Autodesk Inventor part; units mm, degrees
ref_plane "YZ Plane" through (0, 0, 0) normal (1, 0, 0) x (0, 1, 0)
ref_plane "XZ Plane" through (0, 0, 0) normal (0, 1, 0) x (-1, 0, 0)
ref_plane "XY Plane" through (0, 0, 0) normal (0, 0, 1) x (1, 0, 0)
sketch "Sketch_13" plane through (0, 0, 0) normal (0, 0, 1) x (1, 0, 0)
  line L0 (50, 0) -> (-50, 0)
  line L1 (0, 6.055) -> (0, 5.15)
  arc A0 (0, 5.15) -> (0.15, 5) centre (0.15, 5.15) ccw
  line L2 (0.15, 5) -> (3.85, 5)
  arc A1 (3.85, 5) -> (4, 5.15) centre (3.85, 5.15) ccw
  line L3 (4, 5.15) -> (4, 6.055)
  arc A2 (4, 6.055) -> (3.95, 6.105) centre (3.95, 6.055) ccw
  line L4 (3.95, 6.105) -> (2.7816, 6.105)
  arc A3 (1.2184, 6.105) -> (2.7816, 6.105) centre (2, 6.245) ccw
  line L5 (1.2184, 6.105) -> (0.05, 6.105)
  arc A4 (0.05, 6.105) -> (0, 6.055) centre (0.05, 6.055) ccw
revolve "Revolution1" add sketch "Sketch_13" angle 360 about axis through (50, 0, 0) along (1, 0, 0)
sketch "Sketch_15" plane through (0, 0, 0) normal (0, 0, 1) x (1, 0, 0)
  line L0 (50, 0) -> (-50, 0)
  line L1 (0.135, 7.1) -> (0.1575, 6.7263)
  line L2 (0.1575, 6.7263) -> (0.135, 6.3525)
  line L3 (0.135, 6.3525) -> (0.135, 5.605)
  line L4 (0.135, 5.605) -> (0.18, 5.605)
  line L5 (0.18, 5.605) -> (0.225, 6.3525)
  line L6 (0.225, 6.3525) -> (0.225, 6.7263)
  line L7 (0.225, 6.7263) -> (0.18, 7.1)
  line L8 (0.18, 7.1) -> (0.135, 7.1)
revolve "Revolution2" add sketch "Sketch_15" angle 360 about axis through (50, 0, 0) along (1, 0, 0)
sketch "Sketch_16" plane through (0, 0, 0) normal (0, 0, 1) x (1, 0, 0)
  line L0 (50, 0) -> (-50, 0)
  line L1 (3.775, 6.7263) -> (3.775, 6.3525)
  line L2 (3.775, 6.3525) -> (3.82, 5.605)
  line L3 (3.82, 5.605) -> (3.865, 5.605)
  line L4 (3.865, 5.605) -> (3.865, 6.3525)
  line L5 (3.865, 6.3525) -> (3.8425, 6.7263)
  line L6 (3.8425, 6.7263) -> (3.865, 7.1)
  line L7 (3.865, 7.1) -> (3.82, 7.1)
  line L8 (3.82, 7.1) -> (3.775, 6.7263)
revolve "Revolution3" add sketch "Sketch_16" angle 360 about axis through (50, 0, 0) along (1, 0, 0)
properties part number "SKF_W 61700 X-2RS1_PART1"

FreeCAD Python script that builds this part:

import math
import FreeCAD as App
import Part
import Sketcher
from FreeCAD import Vector
Q = App.Units.Quantity

doc = App.newDocument("Part")
body = doc.addObject("PartDesign::Body", "Body")

# Sketch on XY plane
sketch1 = doc.addObject("Sketcher::SketchObject", "Sketch")
body.addObject(sketch1)
sketch1.AttachmentSupport = (doc.XY_Plane, [""])
sketch1.MapMode = "FlatFace"
sketch1.addGeometry([
    Part.ArcOfCircle(Part.Circle(Vector(0.05, 6.055, 0), Vector(0, 0, 1), 0.05), math.radians(90), math.radians(180)),  # 0
    Part.LineSegment(Vector(0, 6.055, 0), Vector(0, 5.15, 0)),  # 1
    Part.ArcOfCircle(Part.Circle(Vector(0.15, 5.15, 0), Vector(0, 0, 1), 0.15), math.radians(180), math.radians(270)),  # 2
    Part.LineSegment(Vector(0.15, 5, 0), Vector(3.85, 5, 0)),  # 3
    Part.ArcOfCircle(Part.Circle(Vector(3.85, 5.15, 0), Vector(0, 0, 1), 0.15), math.radians(-90), math.radians(0)),  # 4
    Part.LineSegment(Vector(4, 5.15, 0), Vector(4, 6.055, 0)),  # 5
    Part.ArcOfCircle(Part.Circle(Vector(3.95, 6.055, 0), Vector(0, 0, 1), 0.05), math.radians(0), math.radians(90)),  # 6
    Part.LineSegment(Vector(3.95, 6.105, 0), Vector(2.782, 6.105, 0)),  # 7
    Part.ArcOfCircle(Part.Circle(Vector(2, 6.245, 0), Vector(0, 0, 1), 0.794), math.radians(-170), math.radians(-10)),  # 8
    Part.LineSegment(Vector(1.218, 6.105, 0), Vector(0.05, 6.105, 0)),  # 9
], False)
sketch1.addConstraint([
    Sketcher.Constraint("Tangent", 0, 2, 1, 1),
    Sketcher.Constraint("Tangent", 1, 2, 2, 1),
    Sketcher.Constraint("Tangent", 2, 2, 3, 1),
    Sketcher.Constraint("Tangent", 3, 2, 4, 1),
    Sketcher.Constraint("Tangent", 4, 2, 5, 1),
    Sketcher.Constraint("Tangent", 5, 2, 6, 1),
    Sketcher.Constraint("Tangent", 6, 2, 7, 1),
    Sketcher.Constraint("Coincident", 7, 2, 8, 2),
    Sketcher.Constraint("Coincident", 8, 1, 9, 1),
    Sketcher.Constraint("Tangent", 9, 2, 0, 1),
    Sketcher.Constraint("Vertical", 1),
    Sketcher.Constraint("Horizontal", 3),
    Sketcher.Constraint("Vertical", 5),
    Sketcher.Constraint("Horizontal", 7),
    Sketcher.Constraint("Horizontal", 9),
    Sketcher.Constraint("Equal", 2, 4),
    Sketcher.Constraint("Equal", 0, 6),
    Sketcher.Constraint("PointOnObject", 0, 2, -2),
    Sketcher.Constraint("Horizontal", 0, 3, 6, 3),
    Sketcher.Constraint("Equal", 7, 9),
    Sketcher.Constraint("Radius", 0, Q("0.05 mm")),
    Sketcher.Constraint("Radius", 2, Q("0.15 mm")),
    Sketcher.Constraint("DistanceX", 3, 1, 3, 2, Q("3.7 mm")),
    Sketcher.Constraint("DistanceY", -1, 1, 2, 2, Q("5 mm")),
    Sketcher.Constraint("Radius", 8, Q("0.794 mm")),
    Sketcher.Constraint("DistanceY", 1, 2, 1, 1, Q("0.905 mm")),
    Sketcher.Constraint("DistanceY", 0, 3, 8, 3, Q("0.19 mm")),
])
revolution = doc.addObject("PartDesign::Revolution", "Revolution")
body.addObject(revolution)
revolution.Profile = sketch1
revolution.ReferenceAxis = (sketch1, ["H_Axis"])
revolution.Angle = 360

# Sketch on XY plane
sketch2 = doc.addObject("Sketcher::SketchObject", "Sketch001")
body.addObject(sketch2)
sketch2.AttachmentSupport = (doc.XY_Plane, [""])
sketch2.MapMode = "FlatFace"
sketch2.addGeometry([
    Part.LineSegment(Vector(0.18, 7.1, 0), Vector(0.135, 7.1, 0)),  # 0
    Part.LineSegment(Vector(0.135, 7.1, 0), Vector(0.158, 6.726, 0)),  # 1
    Part.LineSegment(Vector(0.158, 6.726, 0), Vector(0.135, 6.353, 0)),  # 2
    Part.LineSegment(Vector(0.135, 6.353, 0), Vector(0.135, 5.605, 0)),  # 3
    Part.LineSegment(Vector(0.135, 5.605, 0), Vector(0.18, 5.605, 0)),  # 4
    Part.LineSegment(Vector(0.18, 5.605, 0), Vector(0.225, 6.353, 0)),  # 5
    Part.LineSegment(Vector(0.225, 6.353, 0), Vector(0.225, 6.726, 0)),  # 6
    Part.LineSegment(Vector(0.225, 6.726, 0), Vector(0.18, 7.1, 0)),  # 7
], False)
sketch2.addConstraint([
    Sketcher.Constraint("Coincident", 0, 2, 1, 1),
    Sketcher.Constraint("Coincident", 1, 2, 2, 1),
    Sketcher.Constraint("Coincident", 2, 2, 3, 1),
    Sketcher.Constraint("Coincident", 3, 2, 4, 1),
    Sketcher.Constraint("Coincident", 4, 2, 5, 1),
    Sketcher.Constraint("Coincident", 5, 2, 6, 1),
    Sketcher.Constraint("Coincident", 6, 2, 7, 1),
    Sketcher.Constraint("Coincident", 7, 2, 0, 1),
    Sketcher.Constraint("Horizontal", 0),
    Sketcher.Constraint("Vertical", 3),
    Sketcher.Constraint("Horizontal", 4),
    Sketcher.Constraint("Vertical", 6),
    Sketcher.Constraint("Parallel", 2, 5),
    Sketcher.Constraint("Horizontal", 2, 2, 5, 2),
    Sketcher.Constraint("Horizontal", 1, 2, 6, 2),
    Sketcher.Constraint("Vertical", 0, 2, 2, 2),
    Sketcher.Constraint("Vertical", 4, 2, 7, 2),
    Sketcher.Constraint("Equal", 1, 2),
    Sketcher.Constraint("DistanceY", -1, 1, 0, 2, Q("7.1 mm")),
    Sketcher.Constraint("DistanceX", 0, 2, 0, 1, Q("0.045 mm")),
    Sketcher.Constraint("DistanceX", -1, 1, 4, 2, Q("0.18 mm")),
    Sketcher.Constraint("DistanceX", 2, 2, 5, 2, Q("0.09 mm")),
    Sketcher.Constraint("DistanceY", 3, 2, 3, 1, Q("0.7475 mm")),
    Sketcher.Constraint("DistanceY", 6, 1, 6, 2, Q("0.3738 mm")),
])
revolution2 = doc.addObject("PartDesign::Revolution", "Revolution001")
body.addObject(revolution2)
revolution2.Profile = sketch2
revolution2.ReferenceAxis = (sketch2, ["H_Axis"])
revolution2.Angle = 360

# Sketch on XY plane
sketch3 = doc.addObject("Sketcher::SketchObject", "Sketch002")
body.addObject(sketch3)
sketch3.AttachmentSupport = (doc.XY_Plane, [""])
sketch3.MapMode = "FlatFace"
sketch3.addGeometry([
    Part.LineSegment(Vector(3.82, 7.1, 0), Vector(3.775, 6.726, 0)),  # 0
    Part.LineSegment(Vector(3.775, 6.726, 0), Vector(3.775, 6.353, 0)),  # 1
    Part.LineSegment(Vector(3.775, 6.353, 0), Vector(3.82, 5.605, 0)),  # 2
    Part.LineSegment(Vector(3.82, 5.605, 0), Vector(3.865, 5.605, 0)),  # 3
    Part.LineSegment(Vector(3.865, 5.605, 0), Vector(3.865, 6.353, 0)),  # 4
    Part.LineSegment(Vector(3.865, 6.353, 0), Vector(3.842, 6.726, 0)),  # 5
    Part.LineSegment(Vector(3.842, 6.726, 0), Vector(3.865, 7.1, 0)),  # 6
    Part.LineSegment(Vector(3.865, 7.1, 0), Vector(3.82, 7.1, 0)),  # 7
], False)
sketch3.addConstraint([
    Sketcher.Constraint("Coincident", 0, 2, 1, 1),
    Sketcher.Constraint("Coincident", 1, 2, 2, 1),
    Sketcher.Constraint("Coincident", 2, 2, 3, 1),
    Sketcher.Constraint("Coincident", 3, 2, 4, 1),
    Sketcher.Constraint("Coincident", 4, 2, 5, 1),
    Sketcher.Constraint("Coincident", 5, 2, 6, 1),
    Sketcher.Constraint("Coincident", 6, 2, 7, 1),
    Sketcher.Constraint("Coincident", 7, 2, 0, 1),
    Sketcher.Constraint("Vertical", 1),
    Sketcher.Constraint("Horizontal", 3),
    Sketcher.Constraint("Vertical", 4),
    Sketcher.Constraint("Horizontal", 7),
    Sketcher.Constraint("Parallel", 2, 5),
    Sketcher.Constraint("Horizontal", 1, 2, 4, 2),
    Sketcher.Constraint("Horizontal", 0, 2, 5, 2),
    Sketcher.Constraint("Vertical", 4, 2, 6, 2),
    Sketcher.Constraint("Vertical", 2, 2, 7, 2),
    Sketcher.Constraint("Equal", 5, 6),
    Sketcher.Constraint("DistanceY", -1, 1, 6, 2, Q("7.1 mm")),
    Sketcher.Constraint("DistanceX", 3, 1, 3, 2, Q("0.045 mm")),
    Sketcher.Constraint("DistanceX", -1, 1, 2, 2, Q("3.82 mm")),
    Sketcher.Constraint("DistanceX", 1, 2, 3, 2, Q("0.09 mm")),
    Sketcher.Constraint("DistanceY", 1, 2, 1, 1, Q("0.3738 mm")),
    Sketcher.Constraint("DistanceY", 4, 1, 4, 2, Q("0.7475 mm")),
])
revolution3 = doc.addObject("PartDesign::Revolution", "Revolution002")
body.addObject(revolution3)
revolution3.Profile = sketch3
revolution3.ReferenceAxis = (sketch3, ["H_Axis"])
revolution3.Angle = 360

doc.recompute()
